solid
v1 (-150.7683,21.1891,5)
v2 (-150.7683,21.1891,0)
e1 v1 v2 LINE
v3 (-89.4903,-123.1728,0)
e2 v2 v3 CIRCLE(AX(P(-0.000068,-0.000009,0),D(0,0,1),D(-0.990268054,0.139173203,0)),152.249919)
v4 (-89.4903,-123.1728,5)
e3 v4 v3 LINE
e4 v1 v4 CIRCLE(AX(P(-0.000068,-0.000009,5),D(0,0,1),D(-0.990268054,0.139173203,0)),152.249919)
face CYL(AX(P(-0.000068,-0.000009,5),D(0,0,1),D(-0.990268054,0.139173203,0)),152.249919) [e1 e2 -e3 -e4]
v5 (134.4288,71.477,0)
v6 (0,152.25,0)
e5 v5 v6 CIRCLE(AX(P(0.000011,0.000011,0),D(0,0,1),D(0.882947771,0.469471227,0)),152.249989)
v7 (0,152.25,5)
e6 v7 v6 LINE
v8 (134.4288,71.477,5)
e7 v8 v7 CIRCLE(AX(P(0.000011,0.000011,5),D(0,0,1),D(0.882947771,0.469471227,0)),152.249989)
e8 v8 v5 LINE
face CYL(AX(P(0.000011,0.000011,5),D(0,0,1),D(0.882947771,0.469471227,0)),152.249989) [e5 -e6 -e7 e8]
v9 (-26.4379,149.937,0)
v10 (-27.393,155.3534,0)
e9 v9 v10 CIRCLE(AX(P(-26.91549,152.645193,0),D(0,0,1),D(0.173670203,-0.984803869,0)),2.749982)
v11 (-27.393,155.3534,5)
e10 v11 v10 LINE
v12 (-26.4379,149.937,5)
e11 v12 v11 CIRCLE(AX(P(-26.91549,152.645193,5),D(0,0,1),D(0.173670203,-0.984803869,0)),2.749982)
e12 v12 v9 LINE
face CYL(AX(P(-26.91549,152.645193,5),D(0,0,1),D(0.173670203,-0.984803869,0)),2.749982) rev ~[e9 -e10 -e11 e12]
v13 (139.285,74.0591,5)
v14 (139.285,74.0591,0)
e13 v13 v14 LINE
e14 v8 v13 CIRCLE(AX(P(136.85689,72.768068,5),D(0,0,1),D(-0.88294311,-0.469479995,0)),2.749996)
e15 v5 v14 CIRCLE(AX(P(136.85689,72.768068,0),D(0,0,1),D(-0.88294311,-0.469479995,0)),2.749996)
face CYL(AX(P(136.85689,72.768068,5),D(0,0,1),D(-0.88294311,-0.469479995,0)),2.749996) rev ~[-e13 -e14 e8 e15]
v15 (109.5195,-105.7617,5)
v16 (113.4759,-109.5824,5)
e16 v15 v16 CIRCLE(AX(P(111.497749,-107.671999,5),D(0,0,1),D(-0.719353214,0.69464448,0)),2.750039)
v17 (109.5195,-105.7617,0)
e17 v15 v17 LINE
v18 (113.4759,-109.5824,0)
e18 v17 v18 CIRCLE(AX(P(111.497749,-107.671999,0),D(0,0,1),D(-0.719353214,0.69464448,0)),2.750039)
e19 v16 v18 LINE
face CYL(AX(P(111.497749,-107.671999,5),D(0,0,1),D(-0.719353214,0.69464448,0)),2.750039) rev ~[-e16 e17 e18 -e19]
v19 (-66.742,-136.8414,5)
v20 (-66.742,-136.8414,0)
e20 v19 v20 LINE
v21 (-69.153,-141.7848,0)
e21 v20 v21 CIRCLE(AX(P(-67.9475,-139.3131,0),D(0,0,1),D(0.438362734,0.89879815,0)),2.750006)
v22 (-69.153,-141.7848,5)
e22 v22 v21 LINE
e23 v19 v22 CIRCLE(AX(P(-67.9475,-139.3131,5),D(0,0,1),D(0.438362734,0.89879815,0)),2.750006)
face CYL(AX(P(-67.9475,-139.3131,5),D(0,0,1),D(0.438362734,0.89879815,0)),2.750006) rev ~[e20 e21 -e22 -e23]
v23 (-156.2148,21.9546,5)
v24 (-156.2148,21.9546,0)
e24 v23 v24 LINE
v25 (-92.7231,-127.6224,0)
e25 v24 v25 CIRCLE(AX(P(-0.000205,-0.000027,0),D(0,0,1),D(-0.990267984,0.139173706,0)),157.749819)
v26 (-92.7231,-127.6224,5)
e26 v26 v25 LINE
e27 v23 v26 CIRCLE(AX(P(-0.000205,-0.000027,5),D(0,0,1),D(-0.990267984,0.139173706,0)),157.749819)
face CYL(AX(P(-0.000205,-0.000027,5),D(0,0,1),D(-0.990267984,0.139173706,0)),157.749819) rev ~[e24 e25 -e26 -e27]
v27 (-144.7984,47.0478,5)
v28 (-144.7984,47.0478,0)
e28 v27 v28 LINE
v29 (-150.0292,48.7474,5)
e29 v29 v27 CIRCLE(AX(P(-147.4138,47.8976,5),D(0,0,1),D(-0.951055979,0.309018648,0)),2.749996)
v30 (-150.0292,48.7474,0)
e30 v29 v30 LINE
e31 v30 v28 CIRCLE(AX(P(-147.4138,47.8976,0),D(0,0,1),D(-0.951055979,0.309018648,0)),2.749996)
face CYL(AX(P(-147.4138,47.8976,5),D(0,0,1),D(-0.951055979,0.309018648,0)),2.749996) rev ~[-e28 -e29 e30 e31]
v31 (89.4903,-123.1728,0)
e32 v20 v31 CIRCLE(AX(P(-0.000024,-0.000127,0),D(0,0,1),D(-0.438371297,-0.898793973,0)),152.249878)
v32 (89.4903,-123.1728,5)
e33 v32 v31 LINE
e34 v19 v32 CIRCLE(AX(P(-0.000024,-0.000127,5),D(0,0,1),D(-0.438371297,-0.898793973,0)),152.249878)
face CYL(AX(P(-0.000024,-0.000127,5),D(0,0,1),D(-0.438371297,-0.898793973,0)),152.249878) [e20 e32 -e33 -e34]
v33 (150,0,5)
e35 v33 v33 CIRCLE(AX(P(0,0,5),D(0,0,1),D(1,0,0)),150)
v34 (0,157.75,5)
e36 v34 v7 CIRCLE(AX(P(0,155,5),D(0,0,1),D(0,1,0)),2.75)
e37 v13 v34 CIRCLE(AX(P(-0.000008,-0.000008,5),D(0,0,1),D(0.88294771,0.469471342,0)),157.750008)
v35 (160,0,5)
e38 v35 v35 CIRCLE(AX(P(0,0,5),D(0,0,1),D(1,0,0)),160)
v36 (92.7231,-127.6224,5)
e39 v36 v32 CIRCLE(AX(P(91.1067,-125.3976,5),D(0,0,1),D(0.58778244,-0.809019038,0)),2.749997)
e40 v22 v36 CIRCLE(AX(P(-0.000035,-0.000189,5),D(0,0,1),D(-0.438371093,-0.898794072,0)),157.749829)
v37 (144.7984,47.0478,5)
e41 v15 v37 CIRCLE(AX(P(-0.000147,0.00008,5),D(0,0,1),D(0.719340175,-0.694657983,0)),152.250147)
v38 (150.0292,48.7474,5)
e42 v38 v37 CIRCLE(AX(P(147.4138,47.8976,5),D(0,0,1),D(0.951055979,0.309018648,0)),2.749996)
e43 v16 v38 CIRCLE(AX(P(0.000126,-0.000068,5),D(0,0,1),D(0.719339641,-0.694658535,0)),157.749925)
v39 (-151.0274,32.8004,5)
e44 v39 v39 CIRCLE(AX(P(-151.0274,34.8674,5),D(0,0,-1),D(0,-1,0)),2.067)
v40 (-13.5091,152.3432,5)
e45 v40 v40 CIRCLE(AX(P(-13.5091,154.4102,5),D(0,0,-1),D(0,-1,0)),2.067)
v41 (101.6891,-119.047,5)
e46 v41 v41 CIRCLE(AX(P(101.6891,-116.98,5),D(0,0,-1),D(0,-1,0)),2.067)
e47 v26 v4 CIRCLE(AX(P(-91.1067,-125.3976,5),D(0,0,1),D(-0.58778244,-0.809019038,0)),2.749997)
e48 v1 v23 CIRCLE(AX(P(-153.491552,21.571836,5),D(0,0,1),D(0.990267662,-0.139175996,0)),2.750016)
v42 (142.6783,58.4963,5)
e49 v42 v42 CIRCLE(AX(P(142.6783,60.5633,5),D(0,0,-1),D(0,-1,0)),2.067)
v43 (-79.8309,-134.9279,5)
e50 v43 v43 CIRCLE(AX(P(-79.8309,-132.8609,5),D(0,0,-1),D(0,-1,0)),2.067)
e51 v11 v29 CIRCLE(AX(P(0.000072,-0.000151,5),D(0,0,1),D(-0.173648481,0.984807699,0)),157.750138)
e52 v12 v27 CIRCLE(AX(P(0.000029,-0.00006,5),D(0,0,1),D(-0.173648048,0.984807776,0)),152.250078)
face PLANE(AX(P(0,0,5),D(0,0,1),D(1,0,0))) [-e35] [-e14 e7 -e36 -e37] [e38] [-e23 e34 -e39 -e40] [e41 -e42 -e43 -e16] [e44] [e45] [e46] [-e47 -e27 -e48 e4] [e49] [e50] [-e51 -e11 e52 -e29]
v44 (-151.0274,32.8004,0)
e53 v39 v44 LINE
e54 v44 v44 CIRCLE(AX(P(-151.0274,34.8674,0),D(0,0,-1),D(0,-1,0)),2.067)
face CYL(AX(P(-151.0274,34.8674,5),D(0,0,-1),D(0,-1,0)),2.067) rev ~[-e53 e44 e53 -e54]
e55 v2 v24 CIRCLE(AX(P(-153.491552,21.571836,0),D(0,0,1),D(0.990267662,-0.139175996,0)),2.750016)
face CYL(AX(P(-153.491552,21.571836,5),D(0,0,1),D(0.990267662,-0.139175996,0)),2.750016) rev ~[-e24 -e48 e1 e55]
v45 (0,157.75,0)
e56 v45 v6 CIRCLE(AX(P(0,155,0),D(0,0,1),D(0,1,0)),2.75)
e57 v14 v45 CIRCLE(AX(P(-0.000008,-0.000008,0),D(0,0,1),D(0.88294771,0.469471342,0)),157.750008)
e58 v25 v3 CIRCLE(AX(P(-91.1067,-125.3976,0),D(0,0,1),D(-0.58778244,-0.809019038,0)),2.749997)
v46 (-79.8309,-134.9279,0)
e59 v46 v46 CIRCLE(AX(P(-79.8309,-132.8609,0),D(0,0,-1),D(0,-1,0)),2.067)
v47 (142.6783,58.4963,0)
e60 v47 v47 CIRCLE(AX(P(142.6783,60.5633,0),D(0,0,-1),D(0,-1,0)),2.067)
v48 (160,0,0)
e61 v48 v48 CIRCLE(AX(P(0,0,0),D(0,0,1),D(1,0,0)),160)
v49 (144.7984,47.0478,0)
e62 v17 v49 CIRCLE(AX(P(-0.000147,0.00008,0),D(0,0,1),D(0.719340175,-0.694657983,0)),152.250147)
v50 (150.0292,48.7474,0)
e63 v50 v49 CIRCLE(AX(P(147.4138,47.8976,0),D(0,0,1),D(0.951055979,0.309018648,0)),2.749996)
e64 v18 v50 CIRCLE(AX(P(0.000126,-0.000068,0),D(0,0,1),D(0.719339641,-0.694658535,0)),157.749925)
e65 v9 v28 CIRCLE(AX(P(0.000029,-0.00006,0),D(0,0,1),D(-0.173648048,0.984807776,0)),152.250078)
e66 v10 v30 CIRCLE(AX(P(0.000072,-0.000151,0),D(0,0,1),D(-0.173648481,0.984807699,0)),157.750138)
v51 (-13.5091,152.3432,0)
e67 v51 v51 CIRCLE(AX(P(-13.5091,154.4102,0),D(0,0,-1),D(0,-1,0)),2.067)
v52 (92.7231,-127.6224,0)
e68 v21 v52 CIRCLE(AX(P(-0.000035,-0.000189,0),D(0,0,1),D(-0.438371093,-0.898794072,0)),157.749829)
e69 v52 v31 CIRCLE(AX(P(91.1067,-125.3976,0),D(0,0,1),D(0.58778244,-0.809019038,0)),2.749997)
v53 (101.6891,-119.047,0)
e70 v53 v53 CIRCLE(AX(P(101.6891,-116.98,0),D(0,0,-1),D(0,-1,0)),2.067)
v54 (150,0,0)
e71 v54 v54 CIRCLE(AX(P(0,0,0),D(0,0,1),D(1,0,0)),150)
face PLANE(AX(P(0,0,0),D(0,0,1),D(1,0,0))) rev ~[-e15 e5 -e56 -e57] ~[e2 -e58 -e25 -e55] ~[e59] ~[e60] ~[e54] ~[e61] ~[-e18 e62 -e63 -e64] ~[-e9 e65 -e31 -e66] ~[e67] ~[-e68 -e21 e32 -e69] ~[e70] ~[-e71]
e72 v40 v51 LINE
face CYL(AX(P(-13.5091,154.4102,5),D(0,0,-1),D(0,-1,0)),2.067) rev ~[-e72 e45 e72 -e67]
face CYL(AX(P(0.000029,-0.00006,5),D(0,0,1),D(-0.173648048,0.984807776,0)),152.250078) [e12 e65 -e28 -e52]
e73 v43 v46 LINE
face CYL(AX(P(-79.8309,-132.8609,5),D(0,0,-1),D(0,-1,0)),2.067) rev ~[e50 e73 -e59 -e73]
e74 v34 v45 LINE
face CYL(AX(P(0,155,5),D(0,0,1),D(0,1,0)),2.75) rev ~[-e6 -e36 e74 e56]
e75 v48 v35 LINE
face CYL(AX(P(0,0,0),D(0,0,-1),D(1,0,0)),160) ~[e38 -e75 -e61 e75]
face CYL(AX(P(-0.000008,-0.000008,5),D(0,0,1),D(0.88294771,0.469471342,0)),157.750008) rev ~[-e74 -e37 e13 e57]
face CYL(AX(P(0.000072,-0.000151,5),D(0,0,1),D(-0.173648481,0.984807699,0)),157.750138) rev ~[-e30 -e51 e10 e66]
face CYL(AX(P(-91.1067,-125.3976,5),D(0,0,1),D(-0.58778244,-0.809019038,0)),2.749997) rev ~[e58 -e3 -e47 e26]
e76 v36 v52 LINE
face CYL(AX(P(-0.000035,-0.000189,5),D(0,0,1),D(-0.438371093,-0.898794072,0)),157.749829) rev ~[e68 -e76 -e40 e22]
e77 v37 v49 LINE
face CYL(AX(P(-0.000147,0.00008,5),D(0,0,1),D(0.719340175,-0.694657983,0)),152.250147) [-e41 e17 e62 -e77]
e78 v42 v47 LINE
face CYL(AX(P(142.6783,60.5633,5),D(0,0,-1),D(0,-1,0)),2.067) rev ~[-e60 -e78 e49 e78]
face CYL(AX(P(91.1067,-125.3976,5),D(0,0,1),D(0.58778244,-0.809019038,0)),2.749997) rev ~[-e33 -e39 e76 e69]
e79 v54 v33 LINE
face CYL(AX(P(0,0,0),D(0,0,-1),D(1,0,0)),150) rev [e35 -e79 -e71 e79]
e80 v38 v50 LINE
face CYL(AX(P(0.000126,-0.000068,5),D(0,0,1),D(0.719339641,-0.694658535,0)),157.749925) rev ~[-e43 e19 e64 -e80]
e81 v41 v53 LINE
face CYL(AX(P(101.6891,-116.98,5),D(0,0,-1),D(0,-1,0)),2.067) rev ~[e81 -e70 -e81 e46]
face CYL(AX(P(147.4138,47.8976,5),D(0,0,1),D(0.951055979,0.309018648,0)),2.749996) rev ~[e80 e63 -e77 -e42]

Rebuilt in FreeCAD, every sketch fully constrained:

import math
import FreeCAD as App
import Part
import Sketcher

doc = App.newDocument("Part")
body = doc.addObject("PartDesign::Body", "Body")

sketch1 = body.newObject("Sketcher::SketchObject", "Sketch")
sketch1.AttachmentSupport = (doc.getObject("XY_Plane"), [""])
sketch1.MapMode = "FlatFace"
sketch1.addGeometry([
    Part.Circle(App.Vector(0, 0, 0), App.Vector(0, 0, 1), 160),
    Part.Circle(App.Vector(0, 0, 0), App.Vector(0, 0, 1), 150),
], False)
sketch1.addConstraint([
    Sketcher.Constraint("Coincident", 0, 3, -1, 1),
    Sketcher.Constraint("Coincident", 1, 3, -1, 1),
    Sketcher.Constraint("Diameter", 0, 320.0),
    Sketcher.Constraint("Diameter", 1, 300.0),
])
pad1 = body.newObject("PartDesign::Pad", "Pad")
pad1.Profile = sketch1
pad1.Length = 5

sketch2 = body.newObject("Sketcher::SketchObject", "Sketch001")
sketch2.AttachmentSupport = (doc.getObject("XY_Plane"), [""])
sketch2.MapMode = "FlatFace"
sketch2.AttachmentOffset = App.Placement(App.Vector(0, 0, 5), App.Rotation())
sketch2.addGeometry([
    Part.ArcOfCircle(Part.Circle(App.Vector(136.9, 72.8, 0), App.Vector(0, 0, 1), 2.8), math.radians(-152), math.radians(28)),
    Part.ArcOfCircle(Part.Circle(App.Vector(0, 0, 0), App.Vector(0, 0, 1), 157.8), math.radians(28), math.radians(90)),
    Part.ArcOfCircle(Part.Circle(App.Vector(0, 155, 0), App.Vector(0, 0, 1), 2.8), math.radians(90), math.radians(270)),
    Part.ArcOfCircle(Part.Circle(App.Vector(0, 0, 0), App.Vector(0, 0, 1), 152.2), math.radians(28), math.radians(90)),
    Part.ArcOfCircle(Part.Circle(App.Vector(-26.9, 152.6, 0), App.Vector(0, 0, 1), 2.7), math.radians(-80), math.radians(100)),
    Part.ArcOfCircle(Part.Circle(App.Vector(0, 0, 0), App.Vector(0, 0, 1), 157.8), math.radians(100), math.radians(162)),
    Part.ArcOfCircle(Part.Circle(App.Vector(-147.4, 47.9, 0), App.Vector(0, 0, 1), 2.7), math.radians(162), math.radians(342)),
    Part.ArcOfCircle(Part.Circle(App.Vector(0, 0, 0), App.Vector(0, 0, 1), 152.3), math.radians(100), math.radians(162)),
    Part.ArcOfCircle(Part.Circle(App.Vector(-153.5, 21.6, 0), App.Vector(0, 0, 1), 2.8), math.radians(-8), math.radians(172)),
    Part.ArcOfCircle(Part.Circle(App.Vector(0, 0, 0), App.Vector(0, 0, 1), 157.7), math.radians(172), math.radians(234)),
    Part.ArcOfCircle(Part.Circle(App.Vector(-91.1, -125.4, 0), App.Vector(0, 0, 1), 2.7), math.radians(-126), math.radians(54)),
    Part.ArcOfCircle(Part.Circle(App.Vector(0, 0, 0), App.Vector(0, 0, 1), 152.2), math.radians(172), math.radians(234)),
    Part.ArcOfCircle(Part.Circle(App.Vector(-67.9, -139.3, 0), App.Vector(0, 0, 1), 2.8), math.radians(64), math.radians(244)),
    Part.ArcOfCircle(Part.Circle(App.Vector(0, 0, 0), App.Vector(0, 0, 1), 157.7), math.radians(-116), math.radians(-54)),
    Part.ArcOfCircle(Part.Circle(App.Vector(91.1, -125.4, 0), App.Vector(0, 0, 1), 2.7), math.radians(-54), math.radians(126)),
    Part.ArcOfCircle(Part.Circle(App.Vector(0, 0, 0), App.Vector(0, 0, 1), 152.2), math.radians(-116), math.radians(-54)),
    Part.ArcOfCircle(Part.Circle(App.Vector(111.5, -107.7, 0), App.Vector(0, 0, 1), 2.8), math.radians(136), math.radians(316)),
    Part.ArcOfCircle(Part.Circle(App.Vector(0, 0, 0), App.Vector(0, 0, 1), 157.7), math.radians(-44), math.radians(18)),
    Part.ArcOfCircle(Part.Circle(App.Vector(147.4, 47.9, 0), App.Vector(0, 0, 1), 2.7), math.radians(18), math.radians(198)),
    Part.ArcOfCircle(Part.Circle(App.Vector(0, 0, 0), App.Vector(0, 0, 1), 152.3), math.radians(-44), math.radians(18)),
], False)
sketch2.addConstraint([
    Sketcher.Constraint("Tangent", 0, 2, 1, 1),
    Sketcher.Constraint("Tangent", 1, 2, 2, 1),
    Sketcher.Constraint("Tangent", 2, 2, 3, 2),
    Sketcher.Constraint("Tangent", 3, 1, 0, 1),
    Sketcher.Constraint("Tangent", 4, 2, 5, 1),
    Sketcher.Constraint("Tangent", 5, 2, 6, 1),
    Sketcher.Constraint("Tangent", 6, 2, 7, 2),
    Sketcher.Constraint("Tangent", 7, 1, 4, 1),
    Sketcher.Constraint("Tangent", 8, 2, 9, 1),
    Sketcher.Constraint("Tangent", 9, 2, 10, 1),
    Sketcher.Constraint("Tangent", 10, 2, 11, 2),
    Sketcher.Constraint("Tangent", 11, 1, 8, 1),
    Sketcher.Constraint("Tangent", 12, 2, 13, 1),
    Sketcher.Constraint("Tangent", 13, 2, 14, 1),
    Sketcher.Constraint("Tangent", 14, 2, 15, 2),
    Sketcher.Constraint("Tangent", 15, 1, 12, 1),
    Sketcher.Constraint("Tangent", 16, 2, 17, 1),
    Sketcher.Constraint("Tangent", 17, 2, 18, 1),
    Sketcher.Constraint("Tangent", 18, 2, 19, 2),
    Sketcher.Constraint("Tangent", 19, 1, 16, 1),
    Sketcher.Constraint("Coincident", 1, 3, -1, 1),
    Sketcher.Constraint("Coincident", 3, 3, -1, 1),
    Sketcher.Constraint("Coincident", 5, 3, -1, 1),
    Sketcher.Constraint("Coincident", 7, 3, -1, 1),
    Sketcher.Constraint("Coincident", 9, 3, -1, 1),
    Sketcher.Constraint("Coincident", 11, 3, -1, 1),
    Sketcher.Constraint("Coincident", 13, 3, -1, 1),
    Sketcher.Constraint("Coincident", 15, 3, -1, 1),
    Sketcher.Constraint("Coincident", 17, 3, -1, 1),
    Sketcher.Constraint("Coincident", 19, 3, -1, 1),
    Sketcher.Constraint("Equal", 2, 4),
    Sketcher.Constraint("Equal", 1, 5),
    Sketcher.Constraint("Equal", 6, 8),
    Sketcher.Constraint("Equal", 5, 9),
    Sketcher.Constraint("Equal", 10, 12),
    Sketcher.Constraint("Equal", 9, 13),
    Sketcher.Constraint("Equal", 14, 16),
    Sketcher.Constraint("Equal", 13, 17),
    Sketcher.Constraint("PointOnObject", 2, 3, -2),
    Sketcher.Constraint("Horizontal", 10, 3, 14, 3),
    Sketcher.Constraint("Horizontal", 6, 3, 18, 3),
    Sketcher.Constraint("Radius", 0, 2.75),
    Sketcher.Constraint("DistanceY", -1, 1, 2, 3, 155.0),
    Sketcher.Constraint("DistanceX", 11, 1, 6, 2, 5.97),
    Sketcher.Constraint("DistanceX", 9, 2, 12, 2, 23.57),
    Sketcher.Constraint("DistanceY", 13, 2, 16, 2, 18.04),
    Sketcher.Constraint("DistanceX", -1, 1, 0, 3, 136.857),
    Sketcher.Constraint("DistanceY", 12, 3, -1, 1, 139.313),
    Sketcher.Constraint("DistanceX", 4, 2, -1, 1, 27.393),
    Sketcher.Constraint("DistanceX", 8, 2, -1, 1, 156.215),
])
pocket1 = body.newObject("PartDesign::Pocket", "Pocket")
pocket1.Profile = sketch2
pocket1.Length = 5

sketch3 = body.newObject("Sketcher::SketchObject", "Sketch002")
sketch3.AttachmentSupport = (doc.getObject("XY_Plane"), [""])
sketch3.MapMode = "FlatFace"
sketch3.AttachmentOffset = App.Placement(App.Vector(0, 0, 5), App.Rotation())
sketch3.addGeometry([
    Part.Circle(App.Vector(-13.5, 154.4, 0), App.Vector(0, 0, 1), 2.1),
    Part.Circle(App.Vector(-151, 34.9, 0), App.Vector(0, 0, 1), 2.1),
    Part.Circle(App.Vector(-79.8, -132.9, 0), App.Vector(0, 0, 1), 2.1),
    Part.Circle(App.Vector(101.7, -117, 0), App.Vector(0, 0, 1), 2.1),
    Part.Circle(App.Vector(142.7, 60.6, 0), App.Vector(0, 0, 1), 2.1),
], False)
sketch3.addConstraint([
    Sketcher.Constraint("Equal", 0, 1),
    Sketcher.Constraint("Equal", 1, 2),
    Sketcher.Constraint("Equal", 2, 3),
    Sketcher.Constraint("Equal", 3, 4),
    Sketcher.Constraint("Diameter", 0, 4.134),
    Sketcher.Constraint("DistanceY", 3, 3, -1, 1, 116.98),
    Sketcher.Constraint("DistanceX", 2, 3, 3, 3, 181.52),
    Sketcher.Constraint("DistanceX", 0, 3, -1, 1, 13.509),
    Sketcher.Constraint("DistanceX", 2, 3, -1, 1, 79.831),
    Sketcher.Constraint("DistanceY", 2, 3, -1, 1, 132.861),
    Sketcher.Constraint("DistanceY", 2, 3, 0, 3, 287.271),
    Sketcher.Constraint("DistanceY", 4, 3, 0, 3, 93.847),
    Sketcher.Constraint("DistanceY", 1, 3, 4, 3, 25.696),
    Sketcher.Constraint("DistanceX", 1, 3, -1, 1, 151.0274),
    Sketcher.Constraint("DistanceX", -1, 1, 4, 3, 142.6783),
])
doc.recompute()
hole = body.newObject("PartDesign::Hole", "Hole")
hole.Profile = sketch3
hole.ThreadType = "None"
hole.Diameter = 4.134
hole.DepthType = "Dimension"
hole.Depth = 8
hole.DrillPoint = "Angled"
hole.DrillPointAngle = 118

doc.recompute()
